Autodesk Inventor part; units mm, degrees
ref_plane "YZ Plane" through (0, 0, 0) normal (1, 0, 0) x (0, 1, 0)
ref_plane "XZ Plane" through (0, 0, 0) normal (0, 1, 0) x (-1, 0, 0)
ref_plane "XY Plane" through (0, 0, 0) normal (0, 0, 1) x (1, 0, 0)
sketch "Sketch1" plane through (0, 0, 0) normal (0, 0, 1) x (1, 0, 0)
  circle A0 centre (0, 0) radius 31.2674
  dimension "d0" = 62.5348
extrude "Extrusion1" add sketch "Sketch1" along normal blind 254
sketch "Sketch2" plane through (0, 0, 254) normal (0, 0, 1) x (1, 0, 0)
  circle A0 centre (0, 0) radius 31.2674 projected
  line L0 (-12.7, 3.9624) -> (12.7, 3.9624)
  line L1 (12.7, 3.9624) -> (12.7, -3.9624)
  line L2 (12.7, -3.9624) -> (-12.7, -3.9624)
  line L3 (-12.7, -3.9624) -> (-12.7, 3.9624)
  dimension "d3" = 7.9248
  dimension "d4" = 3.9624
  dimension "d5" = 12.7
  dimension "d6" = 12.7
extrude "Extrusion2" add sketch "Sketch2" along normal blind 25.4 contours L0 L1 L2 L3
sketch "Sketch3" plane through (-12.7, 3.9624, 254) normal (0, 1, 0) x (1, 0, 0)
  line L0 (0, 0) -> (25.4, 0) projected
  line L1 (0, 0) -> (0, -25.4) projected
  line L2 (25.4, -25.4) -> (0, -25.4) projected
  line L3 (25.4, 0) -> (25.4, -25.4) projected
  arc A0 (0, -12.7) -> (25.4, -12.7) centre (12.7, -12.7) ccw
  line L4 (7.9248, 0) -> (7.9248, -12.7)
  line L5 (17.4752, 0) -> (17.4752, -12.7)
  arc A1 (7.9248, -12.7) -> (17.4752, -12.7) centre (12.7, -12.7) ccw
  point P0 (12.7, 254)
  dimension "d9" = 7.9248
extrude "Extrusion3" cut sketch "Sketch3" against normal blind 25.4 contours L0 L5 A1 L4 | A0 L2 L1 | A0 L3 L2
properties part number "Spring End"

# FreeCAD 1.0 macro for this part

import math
import FreeCAD as App
import Part
import Sketcher

V = App.Vector
Q = App.Units.Quantity

doc = App.newDocument("Part")
body = doc.addObject("PartDesign::Body", "Body")

# Sketch on XY plane
sketch1 = body.newObject("Sketcher::SketchObject", "Sketch")
sketch1.AttachmentSupport = (doc.getObject("XY_Plane"), [""])
sketch1.MapMode = "FlatFace"
sketch1.addGeometry(Part.Circle(V(0, 0, 0), V(0, 0, 1), 31), False)
sketch1.addConstraint([
    Sketcher.Constraint("Coincident", 0, 3, -1, 1),
    Sketcher.Constraint("Diameter", 0, Q("2.462 in")),
])
pad1 = body.newObject("PartDesign::Pad", "Pad")
pad1.Profile = sketch1
pad1.Length = Q("10 in")

# Sketch on XY plane
sketch2 = body.newObject("Sketcher::SketchObject", "Sketch001")
sketch2.AttachmentSupport = (doc.getObject("XY_Plane"), [""])
sketch2.MapMode = "FlatFace"
sketch2.AttachmentOffset = App.Placement(V(0, 0, 10 * 25.4), App.Rotation())
sketch2.addGeometry([
    Part.LineSegment(V(13, 4, 0), V(-13, 4, 0)),
    Part.LineSegment(V(-13, 4, 0), V(-13, -4, 0)),
    Part.LineSegment(V(-13, -4, 0), V(13, -4, 0)),
    Part.LineSegment(V(13, -4, 0), V(13, 4, 0)),
], False)
sketch2.addConstraint([
    Sketcher.Constraint("Coincident", 0, 2, 1, 1),
    Sketcher.Constraint("Coincident", 1, 2, 2, 1),
    Sketcher.Constraint("Coincident", 2, 2, 3, 1),
    Sketcher.Constraint("Coincident", 3, 2, 0, 1),
    Sketcher.Constraint("Horizontal", 0),
    Sketcher.Constraint("Vertical", 1),
    Sketcher.Constraint("Horizontal", 2),
    Sketcher.Constraint("Vertical", 3),
    Sketcher.Constraint("Symmetric", 0, 2, 2, 2, -1, 1),
    Sketcher.Constraint("DistanceX", 0, 2, -1, 1, Q("0.5 in")),
    Sketcher.Constraint("DistanceY", 1, 2, 1, 1, Q("0.312 in")),
])
pad2 = body.newObject("PartDesign::Pad", "Pad001")
pad2.Profile = sketch2
pad2.Length = Q("1 in")

# Sketch on XZ plane
sketch3 = body.newObject("Sketcher::SketchObject", "Sketch002")
sketch3.AttachmentSupport = (doc.getObject("XZ_Plane"), [""])
sketch3.MapMode = "FlatFace"
sketch3.AttachmentOffset = App.Placement(V(0, 0, -0.156 * 25.4), App.Rotation())
sketch3.addGeometry([
    Part.LineSegment(V(4.8, 254, 0), V(-4.8, 254, 0)),  # 0
    Part.LineSegment(V(-4.8, 254, 0), V(-4.8, 266.7, 0)),  # 1
    Part.ArcOfCircle(Part.Circle(V(0, 266.7, 0), V(0, 0, 1), 4.8), math.radians(0), math.radians(180)),  # 2
    Part.LineSegment(V(4.8, 266.7, 0), V(4.8, 254, 0)),  # 3
    Part.ArcOfCircle(Part.Circle(V(0, 266.7, 0), V(0, 0, 1), 12.7), math.radians(90), math.radians(180)),  # 4
    Part.LineSegment(V(-12.7, 266.7, 0), V(-12.7, 279.4, 0)),  # 5
    Part.LineSegment(V(-12.7, 279.4, 0), V(0, 279.4, 0)),  # 6
    Part.ArcOfCircle(Part.Circle(V(0, 266.7, 0), V(0, 0, 1), 12.7), math.radians(0), math.radians(90)),  # 7
    Part.LineSegment(V(0, 279.4, 0), V(12.7, 279.4, 0)),  # 8
    Part.LineSegment(V(12.7, 279.4, 0), V(12.7, 266.7, 0)),  # 9
], False)
sketch3.addConstraint([
    Sketcher.Constraint("Coincident", 0, 2, 1, 1),
    Sketcher.Constraint("Tangent", 1, 2, 2, 2),
    Sketcher.Constraint("Tangent", 2, 1, 3, 1),
    Sketcher.Constraint("Coincident", 3, 2, 0, 1),
    Sketcher.Constraint("Tangent", 4, 2, 5, 1),
    Sketcher.Constraint("Coincident", 5, 2, 6, 1),
    Sketcher.Constraint("Tangent", 6, 2, 4, 1),
    Sketcher.Constraint("Tangent", 7, 2, 8, 1),
    Sketcher.Constraint("Coincident", 8, 2, 9, 1),
    Sketcher.Constraint("Tangent", 9, 2, 7, 1),
    Sketcher.Constraint("Horizontal", 0),
    Sketcher.Constraint("Vertical", 1),
    Sketcher.Constraint("Vertical", 3),
    Sketcher.Constraint("Vertical", 5),
    Sketcher.Constraint("Horizontal", 6),
    Sketcher.Constraint("Horizontal", 8),
    Sketcher.Constraint("Vertical", 9),
    Sketcher.Constraint("Coincident", 4, 3, 2, 3),
    Sketcher.Constraint("Coincident", 7, 3, 2, 3),
    Sketcher.Constraint("Equal", 4, 7),
    Sketcher.Constraint("PointOnObject", 2, 3, -2),
    Sketcher.Constraint("Equal", 8, 1),
    Sketcher.Constraint("Radius", 4, Q("0.5 in")),
    Sketcher.Constraint("DistanceY", -1, 1, 0, 2, Q("10 in")),
    Sketcher.Constraint("Radius", 2, Q("0.188 in")),
])
pocket1 = body.newObject("PartDesign::Pocket", "Pocket")
pocket1.Profile = sketch3
pocket1.Length = Q("1 in")
pocket1.Reversed = True

doc.recompute()
